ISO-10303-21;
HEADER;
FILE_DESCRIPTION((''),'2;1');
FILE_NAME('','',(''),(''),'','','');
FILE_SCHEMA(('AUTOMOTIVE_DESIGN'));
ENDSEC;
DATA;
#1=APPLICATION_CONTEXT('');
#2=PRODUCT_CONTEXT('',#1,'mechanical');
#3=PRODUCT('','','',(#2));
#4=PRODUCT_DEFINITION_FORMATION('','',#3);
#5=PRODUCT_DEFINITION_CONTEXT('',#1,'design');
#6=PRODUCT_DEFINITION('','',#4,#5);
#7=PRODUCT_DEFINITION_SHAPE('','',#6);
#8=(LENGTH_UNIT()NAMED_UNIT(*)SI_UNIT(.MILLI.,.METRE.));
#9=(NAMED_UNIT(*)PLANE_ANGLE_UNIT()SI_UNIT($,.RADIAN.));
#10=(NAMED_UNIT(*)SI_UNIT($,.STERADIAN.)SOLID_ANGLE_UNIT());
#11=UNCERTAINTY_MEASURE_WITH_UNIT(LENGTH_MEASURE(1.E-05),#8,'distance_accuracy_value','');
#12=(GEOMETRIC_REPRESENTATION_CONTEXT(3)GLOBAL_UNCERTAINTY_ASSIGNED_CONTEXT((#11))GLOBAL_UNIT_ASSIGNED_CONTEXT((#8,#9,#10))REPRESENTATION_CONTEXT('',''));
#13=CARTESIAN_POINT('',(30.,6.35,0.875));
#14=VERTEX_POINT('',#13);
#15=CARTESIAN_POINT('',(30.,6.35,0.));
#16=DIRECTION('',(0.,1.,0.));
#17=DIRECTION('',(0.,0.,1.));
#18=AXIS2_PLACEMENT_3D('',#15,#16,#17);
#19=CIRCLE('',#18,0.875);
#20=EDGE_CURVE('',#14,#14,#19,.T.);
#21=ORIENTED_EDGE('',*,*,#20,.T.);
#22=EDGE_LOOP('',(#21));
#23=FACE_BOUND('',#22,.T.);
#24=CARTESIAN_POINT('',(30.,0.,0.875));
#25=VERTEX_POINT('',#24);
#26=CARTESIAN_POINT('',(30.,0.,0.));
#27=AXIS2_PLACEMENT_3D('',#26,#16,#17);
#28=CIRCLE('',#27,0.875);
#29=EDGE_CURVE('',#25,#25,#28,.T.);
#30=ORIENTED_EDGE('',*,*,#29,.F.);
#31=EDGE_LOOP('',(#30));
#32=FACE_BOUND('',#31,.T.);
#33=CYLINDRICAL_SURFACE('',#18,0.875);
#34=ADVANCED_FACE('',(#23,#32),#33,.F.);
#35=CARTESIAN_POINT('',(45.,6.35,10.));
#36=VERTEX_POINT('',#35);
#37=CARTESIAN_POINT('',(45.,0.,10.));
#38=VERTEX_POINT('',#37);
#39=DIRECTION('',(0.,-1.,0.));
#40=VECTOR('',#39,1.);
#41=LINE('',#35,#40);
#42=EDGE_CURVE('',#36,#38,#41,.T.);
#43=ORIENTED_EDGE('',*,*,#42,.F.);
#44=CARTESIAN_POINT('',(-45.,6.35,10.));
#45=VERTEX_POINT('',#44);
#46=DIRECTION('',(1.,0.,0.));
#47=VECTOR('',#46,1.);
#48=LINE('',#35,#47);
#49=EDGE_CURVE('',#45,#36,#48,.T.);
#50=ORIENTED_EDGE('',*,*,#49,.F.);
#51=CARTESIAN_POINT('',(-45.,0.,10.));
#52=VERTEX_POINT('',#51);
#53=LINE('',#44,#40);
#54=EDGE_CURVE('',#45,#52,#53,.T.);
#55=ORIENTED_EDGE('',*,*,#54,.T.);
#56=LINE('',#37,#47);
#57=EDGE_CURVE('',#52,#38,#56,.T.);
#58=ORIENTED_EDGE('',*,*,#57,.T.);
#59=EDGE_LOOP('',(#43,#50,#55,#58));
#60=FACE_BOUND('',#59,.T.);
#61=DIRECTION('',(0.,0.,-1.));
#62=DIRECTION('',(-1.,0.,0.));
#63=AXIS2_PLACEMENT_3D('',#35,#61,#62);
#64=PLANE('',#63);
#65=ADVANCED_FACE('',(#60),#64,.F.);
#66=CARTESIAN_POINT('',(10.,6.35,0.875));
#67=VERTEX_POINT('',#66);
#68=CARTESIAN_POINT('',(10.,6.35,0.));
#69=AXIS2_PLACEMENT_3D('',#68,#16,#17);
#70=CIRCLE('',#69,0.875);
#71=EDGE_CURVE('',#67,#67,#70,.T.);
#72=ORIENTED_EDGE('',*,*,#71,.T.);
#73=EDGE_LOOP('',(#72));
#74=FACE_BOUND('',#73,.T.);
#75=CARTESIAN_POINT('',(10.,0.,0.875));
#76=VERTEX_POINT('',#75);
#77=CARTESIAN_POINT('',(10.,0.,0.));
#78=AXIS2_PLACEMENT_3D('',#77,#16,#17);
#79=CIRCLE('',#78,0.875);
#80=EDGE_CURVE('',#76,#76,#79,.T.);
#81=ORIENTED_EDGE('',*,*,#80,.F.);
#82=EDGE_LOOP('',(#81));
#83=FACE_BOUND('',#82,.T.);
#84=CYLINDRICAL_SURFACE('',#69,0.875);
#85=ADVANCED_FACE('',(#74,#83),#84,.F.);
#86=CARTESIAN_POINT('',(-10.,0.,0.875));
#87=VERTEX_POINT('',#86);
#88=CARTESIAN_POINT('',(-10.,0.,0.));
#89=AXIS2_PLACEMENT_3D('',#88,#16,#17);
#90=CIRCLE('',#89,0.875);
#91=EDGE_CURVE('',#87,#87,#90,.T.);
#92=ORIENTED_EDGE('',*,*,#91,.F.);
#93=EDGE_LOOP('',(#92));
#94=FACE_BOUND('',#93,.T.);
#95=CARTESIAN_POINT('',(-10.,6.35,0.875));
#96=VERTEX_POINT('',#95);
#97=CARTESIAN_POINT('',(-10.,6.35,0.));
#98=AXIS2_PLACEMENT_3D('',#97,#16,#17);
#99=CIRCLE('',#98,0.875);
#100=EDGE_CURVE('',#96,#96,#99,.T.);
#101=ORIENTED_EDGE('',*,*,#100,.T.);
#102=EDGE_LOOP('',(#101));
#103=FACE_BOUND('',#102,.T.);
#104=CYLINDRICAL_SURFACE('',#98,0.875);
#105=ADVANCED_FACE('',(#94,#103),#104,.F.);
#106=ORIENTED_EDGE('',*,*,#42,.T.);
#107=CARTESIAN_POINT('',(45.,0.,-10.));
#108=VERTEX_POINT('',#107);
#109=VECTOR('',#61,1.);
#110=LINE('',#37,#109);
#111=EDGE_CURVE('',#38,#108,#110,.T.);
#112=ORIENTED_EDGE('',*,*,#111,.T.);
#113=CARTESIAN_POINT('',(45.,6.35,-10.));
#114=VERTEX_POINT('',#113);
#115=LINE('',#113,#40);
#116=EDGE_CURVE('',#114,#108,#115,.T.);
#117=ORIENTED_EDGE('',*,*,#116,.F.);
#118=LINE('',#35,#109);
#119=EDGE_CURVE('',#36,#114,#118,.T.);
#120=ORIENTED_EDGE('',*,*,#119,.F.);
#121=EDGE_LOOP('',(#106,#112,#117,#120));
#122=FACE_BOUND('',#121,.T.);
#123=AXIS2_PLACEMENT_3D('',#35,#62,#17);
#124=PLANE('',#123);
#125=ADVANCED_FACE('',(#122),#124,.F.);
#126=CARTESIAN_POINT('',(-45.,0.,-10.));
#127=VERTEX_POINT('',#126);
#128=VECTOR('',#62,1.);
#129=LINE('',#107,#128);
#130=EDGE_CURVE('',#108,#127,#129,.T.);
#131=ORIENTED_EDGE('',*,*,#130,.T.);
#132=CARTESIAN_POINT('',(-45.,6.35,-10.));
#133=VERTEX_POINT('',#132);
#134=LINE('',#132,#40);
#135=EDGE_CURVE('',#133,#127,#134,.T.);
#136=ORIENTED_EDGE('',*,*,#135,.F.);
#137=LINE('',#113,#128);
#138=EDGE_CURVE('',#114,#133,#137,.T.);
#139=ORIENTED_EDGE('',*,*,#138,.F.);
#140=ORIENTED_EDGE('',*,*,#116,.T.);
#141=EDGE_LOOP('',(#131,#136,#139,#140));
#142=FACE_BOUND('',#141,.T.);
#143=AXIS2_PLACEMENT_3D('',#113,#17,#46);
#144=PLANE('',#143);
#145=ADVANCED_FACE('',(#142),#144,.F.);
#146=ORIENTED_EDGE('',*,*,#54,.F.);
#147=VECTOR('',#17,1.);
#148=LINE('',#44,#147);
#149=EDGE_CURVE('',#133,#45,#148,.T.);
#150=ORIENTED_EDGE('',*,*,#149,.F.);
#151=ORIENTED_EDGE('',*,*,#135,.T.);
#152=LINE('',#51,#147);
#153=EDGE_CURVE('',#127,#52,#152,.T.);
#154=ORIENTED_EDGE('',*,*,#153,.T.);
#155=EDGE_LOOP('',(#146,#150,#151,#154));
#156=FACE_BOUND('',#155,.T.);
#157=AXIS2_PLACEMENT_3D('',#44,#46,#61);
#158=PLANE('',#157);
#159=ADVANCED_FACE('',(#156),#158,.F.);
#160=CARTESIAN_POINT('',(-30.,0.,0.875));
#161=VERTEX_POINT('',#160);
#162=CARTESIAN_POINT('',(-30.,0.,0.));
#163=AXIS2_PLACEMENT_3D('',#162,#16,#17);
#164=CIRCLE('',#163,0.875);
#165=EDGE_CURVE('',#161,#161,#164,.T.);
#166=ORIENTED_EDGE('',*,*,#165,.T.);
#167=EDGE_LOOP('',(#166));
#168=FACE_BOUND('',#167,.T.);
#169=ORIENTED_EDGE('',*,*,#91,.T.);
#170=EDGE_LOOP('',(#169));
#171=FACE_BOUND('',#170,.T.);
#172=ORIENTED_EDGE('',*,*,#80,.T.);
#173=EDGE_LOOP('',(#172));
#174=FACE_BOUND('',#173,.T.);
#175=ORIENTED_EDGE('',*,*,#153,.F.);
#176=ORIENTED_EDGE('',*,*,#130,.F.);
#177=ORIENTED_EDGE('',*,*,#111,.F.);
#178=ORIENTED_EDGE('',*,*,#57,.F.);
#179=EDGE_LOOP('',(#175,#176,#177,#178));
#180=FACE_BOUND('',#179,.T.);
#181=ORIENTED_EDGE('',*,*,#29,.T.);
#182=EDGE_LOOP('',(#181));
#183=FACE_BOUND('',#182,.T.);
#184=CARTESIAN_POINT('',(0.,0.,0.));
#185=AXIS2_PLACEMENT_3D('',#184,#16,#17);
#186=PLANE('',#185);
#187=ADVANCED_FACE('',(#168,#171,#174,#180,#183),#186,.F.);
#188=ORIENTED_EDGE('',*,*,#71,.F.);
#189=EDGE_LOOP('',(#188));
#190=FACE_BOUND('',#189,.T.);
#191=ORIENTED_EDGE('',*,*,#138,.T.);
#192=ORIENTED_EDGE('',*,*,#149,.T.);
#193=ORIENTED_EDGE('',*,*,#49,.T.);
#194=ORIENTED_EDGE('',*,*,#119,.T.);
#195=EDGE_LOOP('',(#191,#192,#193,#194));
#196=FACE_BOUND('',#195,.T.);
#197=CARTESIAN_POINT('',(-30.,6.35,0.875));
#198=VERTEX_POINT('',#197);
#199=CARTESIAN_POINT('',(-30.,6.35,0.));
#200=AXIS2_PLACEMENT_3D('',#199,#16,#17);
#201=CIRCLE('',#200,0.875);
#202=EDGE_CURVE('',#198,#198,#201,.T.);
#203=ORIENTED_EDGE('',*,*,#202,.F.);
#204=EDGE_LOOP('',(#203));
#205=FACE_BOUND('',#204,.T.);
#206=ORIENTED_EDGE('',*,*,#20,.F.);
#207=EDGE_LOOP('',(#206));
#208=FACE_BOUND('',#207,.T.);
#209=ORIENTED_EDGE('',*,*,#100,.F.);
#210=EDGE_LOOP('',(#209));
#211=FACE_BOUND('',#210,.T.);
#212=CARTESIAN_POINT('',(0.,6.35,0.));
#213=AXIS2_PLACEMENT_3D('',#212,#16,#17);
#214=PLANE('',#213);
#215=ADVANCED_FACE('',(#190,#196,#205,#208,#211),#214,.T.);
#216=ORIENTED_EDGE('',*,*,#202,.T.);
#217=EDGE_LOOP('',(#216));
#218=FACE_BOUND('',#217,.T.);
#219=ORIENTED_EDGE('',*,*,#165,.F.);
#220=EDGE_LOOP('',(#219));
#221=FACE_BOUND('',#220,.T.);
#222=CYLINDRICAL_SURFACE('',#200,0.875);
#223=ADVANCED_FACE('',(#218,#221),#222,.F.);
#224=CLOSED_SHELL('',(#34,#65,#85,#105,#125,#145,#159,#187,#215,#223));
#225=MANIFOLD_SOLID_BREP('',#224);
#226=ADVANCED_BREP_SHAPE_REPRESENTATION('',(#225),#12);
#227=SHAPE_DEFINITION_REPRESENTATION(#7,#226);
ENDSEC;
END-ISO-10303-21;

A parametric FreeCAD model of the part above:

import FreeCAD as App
import Part
import Sketcher

V = App.Vector


def add_polygon(sketch, points):
    """Adds a closed chain of lines whose ends are joined by coincident constraints."""
    first, n = sketch.GeometryCount, len(points)
    for a, b in zip(points, points[1:] + points[:1]):
        sketch.addGeometry(Part.LineSegment(App.Vector(*a, 0), App.Vector(*b, 0)), False)
    for i in range(n):
        sketch.addConstraint(Sketcher.Constraint("Coincident", first + i, 2, first + (i + 1) % n, 1))

doc = App.newDocument("Part")
body = doc.addObject("PartDesign::Body", "Body")

sketch1 = body.newObject("Sketcher::SketchObject", "Sketch")
sketch1.AttachmentSupport = (doc.getObject("XZ_Plane"), [""])
sketch1.MapMode = "FlatFace"
add_polygon(sketch1, [(-45, -10), (-45, 10), (45, 10), (45, -10)])
sketch1.addConstraint([
    Sketcher.Constraint("Vertical", 0),
    Sketcher.Constraint("Horizontal", 1),
    Sketcher.Constraint("Vertical", 2),
    Sketcher.Constraint("Horizontal", 3),
    Sketcher.Constraint("Symmetric", 0, 2, 2, 2, -1, 1),
    Sketcher.Constraint("DistanceX", 1, 1, 1, 2, 90.0),
    Sketcher.Constraint("DistanceY", 0, 1, 0, 2, 20.0),
])
pad1 = body.newObject("PartDesign::Pad", "Pad")
pad1.Profile = sketch1
pad1.Length = 6.35
pad1.Reversed = True

sketch2 = body.newObject("Sketcher::SketchObject", "Sketch001")
sketch2.AttachmentSupport = (doc.getObject("XZ_Plane"), [""])
sketch2.MapMode = "FlatFace"
sketch2.AttachmentOffset = App.Placement(V(0, 0, -6.35), App.Rotation())
sketch2.addGeometry([
    Part.Circle(V(-30, 0, 0), V(0, 0, 1), 0.9),
    Part.Circle(V(-10, 0, 0), V(0, 0, 1), 0.9),
    Part.Circle(V(30, 0, 0), V(0, 0, 1), 0.9),
    Part.Circle(V(10, 0, 0), V(0, 0, 1), 0.9),
], False)
sketch2.addConstraint([
    Sketcher.Constraint("Equal", 0, 1),
    Sketcher.Constraint("Equal", 1, 2),
    Sketcher.Constraint("Equal", 2, 3),
    Sketcher.Constraint("Symmetric", 0, 3, 2, 3, -1, 1),
    Sketcher.Constraint("Symmetric", 1, 3, 3, 3, -1, 1),
    Sketcher.Constraint("PointOnObject", 0, 3, -1),
    Sketcher.Constraint("PointOnObject", 1, 3, -1),
    Sketcher.Constraint("Diameter", 0, 1.75),
    Sketcher.Constraint("DistanceX", 0, 3, -1, 1, 30.0),
    Sketcher.Constraint("DistanceX", 1, 3, -1, 1, 10.0),
])
doc.recompute()
hole = body.newObject("PartDesign::Hole", "Hole")
hole.Profile = sketch2
hole.ThreadType = "None"
hole.Diameter = 1.75
hole.DepthType = "ThroughAll"
hole.Reversed = True

doc.recompute()
